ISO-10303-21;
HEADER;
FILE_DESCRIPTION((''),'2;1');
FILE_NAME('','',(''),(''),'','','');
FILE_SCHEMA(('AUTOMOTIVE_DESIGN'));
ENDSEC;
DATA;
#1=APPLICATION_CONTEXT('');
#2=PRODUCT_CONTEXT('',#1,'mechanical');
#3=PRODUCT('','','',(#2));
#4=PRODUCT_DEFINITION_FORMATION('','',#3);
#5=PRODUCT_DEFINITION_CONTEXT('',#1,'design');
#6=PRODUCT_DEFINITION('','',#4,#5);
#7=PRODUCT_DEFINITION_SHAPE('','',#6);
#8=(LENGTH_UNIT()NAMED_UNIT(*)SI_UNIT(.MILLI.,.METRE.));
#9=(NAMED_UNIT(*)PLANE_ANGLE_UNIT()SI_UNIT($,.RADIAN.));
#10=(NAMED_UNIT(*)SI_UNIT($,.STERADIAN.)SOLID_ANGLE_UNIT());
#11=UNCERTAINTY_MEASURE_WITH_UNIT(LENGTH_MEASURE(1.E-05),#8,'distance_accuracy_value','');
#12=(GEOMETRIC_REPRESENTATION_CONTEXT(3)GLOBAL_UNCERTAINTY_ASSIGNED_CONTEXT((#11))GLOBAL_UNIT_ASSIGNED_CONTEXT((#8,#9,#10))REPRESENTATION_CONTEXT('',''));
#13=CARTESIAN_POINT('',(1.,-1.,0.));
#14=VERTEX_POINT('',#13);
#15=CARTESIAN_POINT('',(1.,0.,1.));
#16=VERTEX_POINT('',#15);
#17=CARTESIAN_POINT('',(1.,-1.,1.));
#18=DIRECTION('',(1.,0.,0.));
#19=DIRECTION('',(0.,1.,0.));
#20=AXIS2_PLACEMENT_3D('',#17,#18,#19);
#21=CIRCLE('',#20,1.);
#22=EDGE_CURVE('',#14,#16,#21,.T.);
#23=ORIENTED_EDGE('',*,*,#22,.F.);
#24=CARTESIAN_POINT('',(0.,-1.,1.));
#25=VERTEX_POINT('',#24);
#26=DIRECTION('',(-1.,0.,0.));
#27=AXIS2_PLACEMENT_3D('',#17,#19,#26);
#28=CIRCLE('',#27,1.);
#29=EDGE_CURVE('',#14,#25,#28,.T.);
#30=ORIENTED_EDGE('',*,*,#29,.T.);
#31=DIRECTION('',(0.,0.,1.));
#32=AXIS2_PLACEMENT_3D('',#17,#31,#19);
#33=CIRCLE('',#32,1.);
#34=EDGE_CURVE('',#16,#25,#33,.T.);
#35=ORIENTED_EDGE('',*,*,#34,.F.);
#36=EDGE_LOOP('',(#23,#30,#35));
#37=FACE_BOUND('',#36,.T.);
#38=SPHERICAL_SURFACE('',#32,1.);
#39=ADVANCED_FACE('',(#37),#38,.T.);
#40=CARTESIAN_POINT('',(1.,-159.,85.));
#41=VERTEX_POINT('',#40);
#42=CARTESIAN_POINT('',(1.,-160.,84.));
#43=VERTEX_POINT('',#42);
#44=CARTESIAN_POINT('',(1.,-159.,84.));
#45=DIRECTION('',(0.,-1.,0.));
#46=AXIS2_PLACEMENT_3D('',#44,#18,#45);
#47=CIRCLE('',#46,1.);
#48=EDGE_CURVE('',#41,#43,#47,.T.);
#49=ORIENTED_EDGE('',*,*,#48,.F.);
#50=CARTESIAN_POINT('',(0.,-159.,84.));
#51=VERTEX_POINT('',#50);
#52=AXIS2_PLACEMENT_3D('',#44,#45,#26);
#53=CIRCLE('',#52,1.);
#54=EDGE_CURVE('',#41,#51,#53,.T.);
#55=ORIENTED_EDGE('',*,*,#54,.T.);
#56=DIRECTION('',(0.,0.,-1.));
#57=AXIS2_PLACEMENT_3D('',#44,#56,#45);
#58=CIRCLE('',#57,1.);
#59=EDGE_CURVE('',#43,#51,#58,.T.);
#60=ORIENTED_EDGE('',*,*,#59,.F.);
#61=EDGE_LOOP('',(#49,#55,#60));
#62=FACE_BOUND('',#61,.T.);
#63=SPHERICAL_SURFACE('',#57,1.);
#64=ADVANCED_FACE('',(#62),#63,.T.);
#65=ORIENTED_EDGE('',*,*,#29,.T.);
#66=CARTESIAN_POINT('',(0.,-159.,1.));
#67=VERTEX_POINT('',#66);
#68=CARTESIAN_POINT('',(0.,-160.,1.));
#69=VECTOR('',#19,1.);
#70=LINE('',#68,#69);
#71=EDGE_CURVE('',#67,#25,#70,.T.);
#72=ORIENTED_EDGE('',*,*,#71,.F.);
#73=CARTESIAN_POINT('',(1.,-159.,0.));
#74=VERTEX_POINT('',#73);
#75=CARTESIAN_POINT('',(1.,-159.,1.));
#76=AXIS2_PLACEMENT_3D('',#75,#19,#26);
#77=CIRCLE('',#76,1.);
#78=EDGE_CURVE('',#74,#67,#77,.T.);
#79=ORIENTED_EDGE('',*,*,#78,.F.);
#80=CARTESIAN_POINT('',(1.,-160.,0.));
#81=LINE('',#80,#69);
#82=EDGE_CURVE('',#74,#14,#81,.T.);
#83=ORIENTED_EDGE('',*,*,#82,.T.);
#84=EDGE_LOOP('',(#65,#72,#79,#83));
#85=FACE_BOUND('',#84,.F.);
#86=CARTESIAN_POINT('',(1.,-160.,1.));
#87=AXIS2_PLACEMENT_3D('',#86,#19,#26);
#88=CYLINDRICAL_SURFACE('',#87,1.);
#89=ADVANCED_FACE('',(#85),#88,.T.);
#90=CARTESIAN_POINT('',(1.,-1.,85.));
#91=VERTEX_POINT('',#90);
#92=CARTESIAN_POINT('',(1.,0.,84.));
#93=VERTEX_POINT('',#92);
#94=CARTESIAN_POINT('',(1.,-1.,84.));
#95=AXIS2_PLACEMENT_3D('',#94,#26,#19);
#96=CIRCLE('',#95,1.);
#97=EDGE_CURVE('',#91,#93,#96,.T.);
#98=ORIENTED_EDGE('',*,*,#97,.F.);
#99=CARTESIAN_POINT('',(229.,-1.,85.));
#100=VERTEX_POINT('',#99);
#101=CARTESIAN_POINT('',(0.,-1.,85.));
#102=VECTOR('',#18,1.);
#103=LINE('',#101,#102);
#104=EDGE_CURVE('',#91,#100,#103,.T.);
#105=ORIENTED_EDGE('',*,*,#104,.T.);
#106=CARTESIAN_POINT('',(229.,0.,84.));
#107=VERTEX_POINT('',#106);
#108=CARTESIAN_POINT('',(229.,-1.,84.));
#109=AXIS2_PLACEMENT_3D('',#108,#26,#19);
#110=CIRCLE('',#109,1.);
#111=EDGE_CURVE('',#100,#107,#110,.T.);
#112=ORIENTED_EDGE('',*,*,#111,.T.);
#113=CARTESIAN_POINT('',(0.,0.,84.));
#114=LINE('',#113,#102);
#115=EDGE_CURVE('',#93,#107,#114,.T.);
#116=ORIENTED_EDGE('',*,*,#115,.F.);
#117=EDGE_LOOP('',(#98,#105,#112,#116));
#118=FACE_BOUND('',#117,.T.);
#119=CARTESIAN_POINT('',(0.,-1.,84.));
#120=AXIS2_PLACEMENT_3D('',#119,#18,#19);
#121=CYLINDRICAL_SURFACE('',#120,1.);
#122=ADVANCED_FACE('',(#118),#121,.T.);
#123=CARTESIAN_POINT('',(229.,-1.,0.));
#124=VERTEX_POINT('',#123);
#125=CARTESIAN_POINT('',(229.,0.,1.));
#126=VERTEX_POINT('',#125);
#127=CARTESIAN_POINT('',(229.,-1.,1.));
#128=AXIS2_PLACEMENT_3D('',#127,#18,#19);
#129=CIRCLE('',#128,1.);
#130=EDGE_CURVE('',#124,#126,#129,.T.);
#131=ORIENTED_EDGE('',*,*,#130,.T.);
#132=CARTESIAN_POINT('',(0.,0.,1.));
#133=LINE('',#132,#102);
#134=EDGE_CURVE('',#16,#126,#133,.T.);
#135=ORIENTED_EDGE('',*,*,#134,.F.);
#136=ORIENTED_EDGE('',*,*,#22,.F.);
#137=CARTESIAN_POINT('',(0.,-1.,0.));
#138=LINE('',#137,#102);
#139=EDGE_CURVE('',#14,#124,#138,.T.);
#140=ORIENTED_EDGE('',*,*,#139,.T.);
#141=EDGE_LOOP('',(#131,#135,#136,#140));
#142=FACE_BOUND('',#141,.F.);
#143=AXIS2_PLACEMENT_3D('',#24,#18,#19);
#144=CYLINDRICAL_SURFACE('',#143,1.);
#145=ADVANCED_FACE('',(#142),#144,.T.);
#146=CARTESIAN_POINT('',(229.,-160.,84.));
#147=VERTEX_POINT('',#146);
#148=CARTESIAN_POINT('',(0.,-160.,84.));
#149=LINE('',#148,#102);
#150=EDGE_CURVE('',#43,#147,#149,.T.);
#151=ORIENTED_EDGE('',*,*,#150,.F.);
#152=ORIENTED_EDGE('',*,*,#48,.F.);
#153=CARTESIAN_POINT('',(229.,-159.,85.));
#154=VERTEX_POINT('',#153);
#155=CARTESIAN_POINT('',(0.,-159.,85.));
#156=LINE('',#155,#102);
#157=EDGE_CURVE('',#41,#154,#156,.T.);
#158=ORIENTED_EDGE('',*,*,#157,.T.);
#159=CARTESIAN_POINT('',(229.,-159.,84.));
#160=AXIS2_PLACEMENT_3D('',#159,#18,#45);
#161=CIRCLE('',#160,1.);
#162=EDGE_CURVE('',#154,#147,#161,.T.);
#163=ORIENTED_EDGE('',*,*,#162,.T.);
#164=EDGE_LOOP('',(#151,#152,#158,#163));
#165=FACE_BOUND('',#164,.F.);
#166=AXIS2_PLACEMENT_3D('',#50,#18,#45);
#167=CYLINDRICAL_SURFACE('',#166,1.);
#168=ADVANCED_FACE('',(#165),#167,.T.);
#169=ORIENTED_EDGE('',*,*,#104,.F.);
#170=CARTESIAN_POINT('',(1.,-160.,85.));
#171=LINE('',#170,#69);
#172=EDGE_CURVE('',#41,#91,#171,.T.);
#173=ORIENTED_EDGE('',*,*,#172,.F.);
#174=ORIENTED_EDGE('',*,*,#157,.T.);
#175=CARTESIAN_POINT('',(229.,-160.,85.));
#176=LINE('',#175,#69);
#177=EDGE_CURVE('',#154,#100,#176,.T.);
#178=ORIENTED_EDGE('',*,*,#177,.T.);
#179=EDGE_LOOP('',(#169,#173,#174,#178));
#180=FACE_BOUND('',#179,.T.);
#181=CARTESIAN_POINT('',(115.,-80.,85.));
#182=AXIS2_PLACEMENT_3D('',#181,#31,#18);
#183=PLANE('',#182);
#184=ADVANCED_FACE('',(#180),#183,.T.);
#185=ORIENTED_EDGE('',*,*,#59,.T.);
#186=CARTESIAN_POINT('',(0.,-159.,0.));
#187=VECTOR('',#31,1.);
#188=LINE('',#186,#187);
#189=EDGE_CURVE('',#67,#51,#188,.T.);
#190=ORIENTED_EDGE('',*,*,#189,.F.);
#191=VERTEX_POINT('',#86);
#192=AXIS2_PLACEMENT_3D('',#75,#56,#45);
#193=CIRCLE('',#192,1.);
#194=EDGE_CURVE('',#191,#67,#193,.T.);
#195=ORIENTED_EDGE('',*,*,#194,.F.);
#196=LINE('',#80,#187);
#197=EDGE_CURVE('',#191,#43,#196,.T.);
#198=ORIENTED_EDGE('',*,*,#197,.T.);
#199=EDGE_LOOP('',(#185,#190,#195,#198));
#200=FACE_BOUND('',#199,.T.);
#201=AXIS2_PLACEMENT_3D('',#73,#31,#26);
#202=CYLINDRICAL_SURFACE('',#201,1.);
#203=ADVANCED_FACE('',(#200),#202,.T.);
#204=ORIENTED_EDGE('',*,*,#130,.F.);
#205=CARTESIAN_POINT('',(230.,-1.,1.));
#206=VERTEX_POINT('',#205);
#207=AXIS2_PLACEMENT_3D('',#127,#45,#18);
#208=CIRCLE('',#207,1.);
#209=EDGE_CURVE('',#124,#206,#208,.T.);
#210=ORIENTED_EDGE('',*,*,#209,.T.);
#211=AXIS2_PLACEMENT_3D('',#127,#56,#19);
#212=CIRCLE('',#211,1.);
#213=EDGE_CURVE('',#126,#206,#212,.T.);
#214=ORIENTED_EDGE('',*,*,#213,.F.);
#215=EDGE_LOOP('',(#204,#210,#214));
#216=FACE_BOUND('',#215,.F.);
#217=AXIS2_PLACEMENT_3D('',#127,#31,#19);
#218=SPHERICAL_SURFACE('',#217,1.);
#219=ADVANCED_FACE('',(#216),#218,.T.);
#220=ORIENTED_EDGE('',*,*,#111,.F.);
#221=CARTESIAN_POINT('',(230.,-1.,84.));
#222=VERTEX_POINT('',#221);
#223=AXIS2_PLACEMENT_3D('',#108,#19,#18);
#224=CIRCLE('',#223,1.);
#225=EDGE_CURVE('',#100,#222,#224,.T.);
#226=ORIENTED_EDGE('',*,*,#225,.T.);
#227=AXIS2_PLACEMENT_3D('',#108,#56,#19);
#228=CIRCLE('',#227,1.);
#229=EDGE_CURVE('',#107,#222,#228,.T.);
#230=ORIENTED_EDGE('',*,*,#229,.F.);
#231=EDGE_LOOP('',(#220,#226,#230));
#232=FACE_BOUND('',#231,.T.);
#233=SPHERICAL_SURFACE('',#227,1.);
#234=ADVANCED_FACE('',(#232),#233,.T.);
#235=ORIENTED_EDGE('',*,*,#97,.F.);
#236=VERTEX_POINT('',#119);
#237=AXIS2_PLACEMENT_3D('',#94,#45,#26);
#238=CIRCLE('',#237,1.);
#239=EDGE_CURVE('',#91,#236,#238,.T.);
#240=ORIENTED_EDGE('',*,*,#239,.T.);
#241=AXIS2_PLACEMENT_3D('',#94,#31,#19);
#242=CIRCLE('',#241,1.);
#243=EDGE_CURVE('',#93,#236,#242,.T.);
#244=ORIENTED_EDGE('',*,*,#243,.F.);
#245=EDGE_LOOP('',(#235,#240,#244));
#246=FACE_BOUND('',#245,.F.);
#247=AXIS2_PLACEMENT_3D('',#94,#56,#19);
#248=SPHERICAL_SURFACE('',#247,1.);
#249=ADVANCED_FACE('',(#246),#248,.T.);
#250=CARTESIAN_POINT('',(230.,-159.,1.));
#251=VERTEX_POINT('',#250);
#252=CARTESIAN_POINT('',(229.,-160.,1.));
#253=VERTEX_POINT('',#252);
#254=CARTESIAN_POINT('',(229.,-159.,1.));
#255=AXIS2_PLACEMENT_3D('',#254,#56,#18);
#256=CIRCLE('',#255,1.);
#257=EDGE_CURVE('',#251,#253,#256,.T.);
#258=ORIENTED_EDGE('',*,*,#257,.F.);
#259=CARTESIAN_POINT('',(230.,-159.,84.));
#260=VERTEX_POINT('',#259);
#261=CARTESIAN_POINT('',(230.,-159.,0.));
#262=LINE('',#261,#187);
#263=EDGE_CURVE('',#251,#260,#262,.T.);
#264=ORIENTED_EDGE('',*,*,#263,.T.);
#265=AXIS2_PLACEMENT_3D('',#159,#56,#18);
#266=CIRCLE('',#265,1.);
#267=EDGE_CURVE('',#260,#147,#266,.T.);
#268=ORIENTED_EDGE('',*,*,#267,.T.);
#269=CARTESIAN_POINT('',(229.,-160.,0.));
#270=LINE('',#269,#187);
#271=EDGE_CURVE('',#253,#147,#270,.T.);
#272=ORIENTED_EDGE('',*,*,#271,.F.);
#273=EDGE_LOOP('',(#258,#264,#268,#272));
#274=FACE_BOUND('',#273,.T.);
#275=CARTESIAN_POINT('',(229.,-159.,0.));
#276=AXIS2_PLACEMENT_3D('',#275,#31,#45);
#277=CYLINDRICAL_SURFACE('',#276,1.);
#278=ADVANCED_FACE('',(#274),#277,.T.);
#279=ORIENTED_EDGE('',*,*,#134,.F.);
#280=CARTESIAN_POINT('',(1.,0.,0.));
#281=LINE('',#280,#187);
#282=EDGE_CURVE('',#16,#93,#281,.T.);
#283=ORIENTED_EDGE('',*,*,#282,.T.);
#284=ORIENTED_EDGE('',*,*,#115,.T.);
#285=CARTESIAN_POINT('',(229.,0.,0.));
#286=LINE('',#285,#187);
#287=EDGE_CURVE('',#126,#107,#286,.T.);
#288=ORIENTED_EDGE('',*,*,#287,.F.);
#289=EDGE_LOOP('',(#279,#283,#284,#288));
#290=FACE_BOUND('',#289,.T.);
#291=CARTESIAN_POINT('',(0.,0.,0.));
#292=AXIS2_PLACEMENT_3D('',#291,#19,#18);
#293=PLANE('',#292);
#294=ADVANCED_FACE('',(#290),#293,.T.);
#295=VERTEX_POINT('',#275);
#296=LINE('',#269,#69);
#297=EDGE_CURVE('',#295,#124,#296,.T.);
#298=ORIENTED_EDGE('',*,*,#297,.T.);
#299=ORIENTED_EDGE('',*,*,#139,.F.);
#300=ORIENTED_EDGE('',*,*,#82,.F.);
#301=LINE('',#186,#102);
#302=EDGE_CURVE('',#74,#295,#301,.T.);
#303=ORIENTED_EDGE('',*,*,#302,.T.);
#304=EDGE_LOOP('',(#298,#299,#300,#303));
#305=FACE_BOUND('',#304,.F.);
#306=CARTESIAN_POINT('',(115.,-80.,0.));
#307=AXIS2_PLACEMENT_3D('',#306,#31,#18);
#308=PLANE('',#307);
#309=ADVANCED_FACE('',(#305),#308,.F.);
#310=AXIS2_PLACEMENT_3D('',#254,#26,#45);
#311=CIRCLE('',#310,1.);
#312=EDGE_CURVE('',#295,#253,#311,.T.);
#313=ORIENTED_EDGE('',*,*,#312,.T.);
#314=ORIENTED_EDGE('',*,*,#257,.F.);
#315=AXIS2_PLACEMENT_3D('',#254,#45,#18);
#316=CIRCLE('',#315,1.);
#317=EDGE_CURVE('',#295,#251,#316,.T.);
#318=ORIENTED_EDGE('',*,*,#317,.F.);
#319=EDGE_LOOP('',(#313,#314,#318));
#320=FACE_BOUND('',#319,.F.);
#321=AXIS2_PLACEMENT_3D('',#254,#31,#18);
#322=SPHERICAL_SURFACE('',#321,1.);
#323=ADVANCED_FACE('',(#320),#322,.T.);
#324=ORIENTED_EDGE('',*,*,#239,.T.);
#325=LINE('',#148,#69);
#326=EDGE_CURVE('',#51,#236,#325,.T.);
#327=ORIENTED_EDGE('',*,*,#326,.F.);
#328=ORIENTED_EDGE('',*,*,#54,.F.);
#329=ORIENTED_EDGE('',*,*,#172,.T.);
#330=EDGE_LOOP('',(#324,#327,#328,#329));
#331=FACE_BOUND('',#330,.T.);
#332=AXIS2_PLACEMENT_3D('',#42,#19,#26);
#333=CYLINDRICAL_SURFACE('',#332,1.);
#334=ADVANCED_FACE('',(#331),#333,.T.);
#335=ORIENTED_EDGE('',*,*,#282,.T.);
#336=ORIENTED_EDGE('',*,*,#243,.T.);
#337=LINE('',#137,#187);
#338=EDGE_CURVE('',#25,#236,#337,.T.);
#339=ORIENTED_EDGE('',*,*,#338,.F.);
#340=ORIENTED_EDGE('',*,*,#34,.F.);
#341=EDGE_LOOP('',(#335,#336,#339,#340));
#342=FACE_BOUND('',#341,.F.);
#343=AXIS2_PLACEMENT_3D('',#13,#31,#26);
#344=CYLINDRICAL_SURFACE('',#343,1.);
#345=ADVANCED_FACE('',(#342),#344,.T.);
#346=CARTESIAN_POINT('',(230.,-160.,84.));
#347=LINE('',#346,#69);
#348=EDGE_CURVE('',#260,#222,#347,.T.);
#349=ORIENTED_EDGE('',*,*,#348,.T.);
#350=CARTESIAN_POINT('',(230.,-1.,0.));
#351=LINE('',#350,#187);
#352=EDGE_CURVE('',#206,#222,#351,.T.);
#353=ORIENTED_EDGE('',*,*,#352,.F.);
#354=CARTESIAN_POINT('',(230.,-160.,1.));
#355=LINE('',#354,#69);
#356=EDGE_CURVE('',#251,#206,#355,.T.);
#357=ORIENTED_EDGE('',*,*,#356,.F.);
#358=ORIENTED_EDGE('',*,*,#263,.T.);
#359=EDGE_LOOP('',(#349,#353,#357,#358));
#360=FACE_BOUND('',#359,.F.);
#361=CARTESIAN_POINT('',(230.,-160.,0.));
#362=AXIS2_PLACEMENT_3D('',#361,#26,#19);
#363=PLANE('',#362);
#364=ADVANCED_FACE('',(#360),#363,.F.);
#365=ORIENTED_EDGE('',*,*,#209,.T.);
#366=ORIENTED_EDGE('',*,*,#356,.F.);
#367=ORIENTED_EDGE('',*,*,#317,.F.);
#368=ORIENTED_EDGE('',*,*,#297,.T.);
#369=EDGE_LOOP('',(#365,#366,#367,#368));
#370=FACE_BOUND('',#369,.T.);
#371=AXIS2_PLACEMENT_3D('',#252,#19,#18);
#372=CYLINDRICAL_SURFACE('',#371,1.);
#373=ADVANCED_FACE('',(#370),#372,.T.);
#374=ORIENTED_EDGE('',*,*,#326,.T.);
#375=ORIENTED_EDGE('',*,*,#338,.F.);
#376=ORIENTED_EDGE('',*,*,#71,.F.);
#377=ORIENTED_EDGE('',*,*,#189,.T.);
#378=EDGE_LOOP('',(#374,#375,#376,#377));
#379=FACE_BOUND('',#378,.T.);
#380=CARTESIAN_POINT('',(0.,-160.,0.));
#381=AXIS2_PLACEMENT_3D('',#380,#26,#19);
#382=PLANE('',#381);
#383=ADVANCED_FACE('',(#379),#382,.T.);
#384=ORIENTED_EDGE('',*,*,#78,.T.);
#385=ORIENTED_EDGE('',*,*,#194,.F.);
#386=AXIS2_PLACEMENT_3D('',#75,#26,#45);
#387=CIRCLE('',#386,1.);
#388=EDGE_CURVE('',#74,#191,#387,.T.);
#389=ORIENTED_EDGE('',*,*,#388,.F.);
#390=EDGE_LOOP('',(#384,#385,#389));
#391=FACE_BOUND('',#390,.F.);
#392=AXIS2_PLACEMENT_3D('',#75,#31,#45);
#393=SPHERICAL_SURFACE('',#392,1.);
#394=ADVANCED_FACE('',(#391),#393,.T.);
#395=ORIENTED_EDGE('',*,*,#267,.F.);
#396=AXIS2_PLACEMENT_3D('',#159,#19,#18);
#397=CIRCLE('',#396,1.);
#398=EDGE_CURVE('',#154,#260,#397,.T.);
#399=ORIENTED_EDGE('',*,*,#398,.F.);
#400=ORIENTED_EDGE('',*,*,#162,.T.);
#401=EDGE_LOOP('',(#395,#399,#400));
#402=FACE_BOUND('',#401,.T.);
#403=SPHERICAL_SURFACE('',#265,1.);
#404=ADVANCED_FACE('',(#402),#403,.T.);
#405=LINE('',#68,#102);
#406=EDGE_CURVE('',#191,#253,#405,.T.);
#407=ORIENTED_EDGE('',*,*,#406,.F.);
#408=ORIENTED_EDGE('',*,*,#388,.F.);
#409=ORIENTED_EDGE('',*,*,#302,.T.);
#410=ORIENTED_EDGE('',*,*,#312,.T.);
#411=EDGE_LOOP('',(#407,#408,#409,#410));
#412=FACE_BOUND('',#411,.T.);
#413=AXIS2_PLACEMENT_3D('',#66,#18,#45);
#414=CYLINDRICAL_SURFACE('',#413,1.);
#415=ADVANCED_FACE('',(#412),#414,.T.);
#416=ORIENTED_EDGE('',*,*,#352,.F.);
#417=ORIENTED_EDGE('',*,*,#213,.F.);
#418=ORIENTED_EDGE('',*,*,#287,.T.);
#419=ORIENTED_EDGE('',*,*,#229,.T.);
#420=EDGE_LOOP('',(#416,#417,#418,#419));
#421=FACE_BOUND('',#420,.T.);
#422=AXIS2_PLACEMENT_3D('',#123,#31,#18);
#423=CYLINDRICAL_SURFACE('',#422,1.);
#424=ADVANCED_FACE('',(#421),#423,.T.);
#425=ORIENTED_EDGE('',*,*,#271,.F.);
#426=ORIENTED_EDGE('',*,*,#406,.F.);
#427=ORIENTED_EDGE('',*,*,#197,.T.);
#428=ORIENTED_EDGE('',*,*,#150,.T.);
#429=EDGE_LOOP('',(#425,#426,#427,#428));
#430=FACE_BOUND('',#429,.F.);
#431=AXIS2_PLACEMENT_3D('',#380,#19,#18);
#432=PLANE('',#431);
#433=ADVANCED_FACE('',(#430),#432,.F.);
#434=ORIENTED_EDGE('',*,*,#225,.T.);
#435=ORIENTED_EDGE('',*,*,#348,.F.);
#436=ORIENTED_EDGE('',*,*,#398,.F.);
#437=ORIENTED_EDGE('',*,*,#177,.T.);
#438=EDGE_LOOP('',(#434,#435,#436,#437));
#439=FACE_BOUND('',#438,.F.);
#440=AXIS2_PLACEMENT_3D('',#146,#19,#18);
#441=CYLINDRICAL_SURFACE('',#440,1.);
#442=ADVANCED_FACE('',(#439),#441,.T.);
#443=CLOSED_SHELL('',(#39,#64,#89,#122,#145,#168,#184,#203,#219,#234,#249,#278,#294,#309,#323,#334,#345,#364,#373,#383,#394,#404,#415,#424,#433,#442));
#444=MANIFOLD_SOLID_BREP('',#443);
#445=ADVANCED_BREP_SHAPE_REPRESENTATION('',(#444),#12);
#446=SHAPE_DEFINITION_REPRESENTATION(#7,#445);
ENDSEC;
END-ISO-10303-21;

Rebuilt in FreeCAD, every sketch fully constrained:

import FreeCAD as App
import Part
import Sketcher
from FreeCAD import Vector
Q = App.Units.Quantity

doc = App.newDocument("Part")
params = doc.addObject("Spreadsheet::Sheet", "Params")
for row, (alias, value) in enumerate([
    ("sketch1_width", "230 mm"),
    ("sketch1_height", "160 mm"),
    ("pad1_length", "85 mm"),
    ("fillet_radius", "1 mm"),
], start=1):
    params.set(f"A{row}", alias)
    params.set(f"B{row}", "=" + value)
    params.setAlias(f"B{row}", alias)

body = doc.addObject("PartDesign::Body", "Body")

# Sketch on XY plane
sketch1 = body.newObject("Sketcher::SketchObject", "Sketch")
sketch1.AttachmentSupport = (doc.getObject("XY_Plane"), [""])
sketch1.MapMode = "FlatFace"
sketch1.addGeometry([
    Part.LineSegment(Vector(0, 0, 0), Vector(0, -160, 0)),
    Part.LineSegment(Vector(0, -160, 0), Vector(230, -160, 0)),
    Part.LineSegment(Vector(230, -160, 0), Vector(230, 0, 0)),
    Part.LineSegment(Vector(230, 0, 0), Vector(0, 0, 0)),
], False)
sketch1.addConstraint([
    Sketcher.Constraint("Coincident", 0, 2, 1, 1),
    Sketcher.Constraint("Coincident", 1, 2, 2, 1),
    Sketcher.Constraint("Coincident", 2, 2, 3, 1),
    Sketcher.Constraint("Coincident", 3, 2, 0, 1),
    Sketcher.Constraint("Vertical", 0),
    Sketcher.Constraint("Horizontal", 1),
    Sketcher.Constraint("Vertical", 2),
    Sketcher.Constraint("Horizontal", 3),
    Sketcher.Constraint("Coincident", 3, 2, -1, 1),
    Sketcher.Constraint("DistanceX", 1, 1, 1, 2, Q("230 mm")),
    Sketcher.Constraint("DistanceY", 0, 2, 0, 1, Q("160 mm")),
])
sketch1.setExpression("Constraints[9]", "Params.sketch1_width")
sketch1.setExpression("Constraints[10]", "Params.sketch1_height")
pad1 = body.newObject("PartDesign::Pad", "Pad")
pad1.Profile = sketch1
pad1.setExpression("Length", "Params.pad1_length")
doc.recompute()

fillet = body.newObject("PartDesign::Fillet", "Fillet")
fillet.Base = (pad1, ["Edge1"])
fillet.UseAllEdges = True
fillet.setExpression("Radius", "Params.fillet_radius")

doc.recompute()
